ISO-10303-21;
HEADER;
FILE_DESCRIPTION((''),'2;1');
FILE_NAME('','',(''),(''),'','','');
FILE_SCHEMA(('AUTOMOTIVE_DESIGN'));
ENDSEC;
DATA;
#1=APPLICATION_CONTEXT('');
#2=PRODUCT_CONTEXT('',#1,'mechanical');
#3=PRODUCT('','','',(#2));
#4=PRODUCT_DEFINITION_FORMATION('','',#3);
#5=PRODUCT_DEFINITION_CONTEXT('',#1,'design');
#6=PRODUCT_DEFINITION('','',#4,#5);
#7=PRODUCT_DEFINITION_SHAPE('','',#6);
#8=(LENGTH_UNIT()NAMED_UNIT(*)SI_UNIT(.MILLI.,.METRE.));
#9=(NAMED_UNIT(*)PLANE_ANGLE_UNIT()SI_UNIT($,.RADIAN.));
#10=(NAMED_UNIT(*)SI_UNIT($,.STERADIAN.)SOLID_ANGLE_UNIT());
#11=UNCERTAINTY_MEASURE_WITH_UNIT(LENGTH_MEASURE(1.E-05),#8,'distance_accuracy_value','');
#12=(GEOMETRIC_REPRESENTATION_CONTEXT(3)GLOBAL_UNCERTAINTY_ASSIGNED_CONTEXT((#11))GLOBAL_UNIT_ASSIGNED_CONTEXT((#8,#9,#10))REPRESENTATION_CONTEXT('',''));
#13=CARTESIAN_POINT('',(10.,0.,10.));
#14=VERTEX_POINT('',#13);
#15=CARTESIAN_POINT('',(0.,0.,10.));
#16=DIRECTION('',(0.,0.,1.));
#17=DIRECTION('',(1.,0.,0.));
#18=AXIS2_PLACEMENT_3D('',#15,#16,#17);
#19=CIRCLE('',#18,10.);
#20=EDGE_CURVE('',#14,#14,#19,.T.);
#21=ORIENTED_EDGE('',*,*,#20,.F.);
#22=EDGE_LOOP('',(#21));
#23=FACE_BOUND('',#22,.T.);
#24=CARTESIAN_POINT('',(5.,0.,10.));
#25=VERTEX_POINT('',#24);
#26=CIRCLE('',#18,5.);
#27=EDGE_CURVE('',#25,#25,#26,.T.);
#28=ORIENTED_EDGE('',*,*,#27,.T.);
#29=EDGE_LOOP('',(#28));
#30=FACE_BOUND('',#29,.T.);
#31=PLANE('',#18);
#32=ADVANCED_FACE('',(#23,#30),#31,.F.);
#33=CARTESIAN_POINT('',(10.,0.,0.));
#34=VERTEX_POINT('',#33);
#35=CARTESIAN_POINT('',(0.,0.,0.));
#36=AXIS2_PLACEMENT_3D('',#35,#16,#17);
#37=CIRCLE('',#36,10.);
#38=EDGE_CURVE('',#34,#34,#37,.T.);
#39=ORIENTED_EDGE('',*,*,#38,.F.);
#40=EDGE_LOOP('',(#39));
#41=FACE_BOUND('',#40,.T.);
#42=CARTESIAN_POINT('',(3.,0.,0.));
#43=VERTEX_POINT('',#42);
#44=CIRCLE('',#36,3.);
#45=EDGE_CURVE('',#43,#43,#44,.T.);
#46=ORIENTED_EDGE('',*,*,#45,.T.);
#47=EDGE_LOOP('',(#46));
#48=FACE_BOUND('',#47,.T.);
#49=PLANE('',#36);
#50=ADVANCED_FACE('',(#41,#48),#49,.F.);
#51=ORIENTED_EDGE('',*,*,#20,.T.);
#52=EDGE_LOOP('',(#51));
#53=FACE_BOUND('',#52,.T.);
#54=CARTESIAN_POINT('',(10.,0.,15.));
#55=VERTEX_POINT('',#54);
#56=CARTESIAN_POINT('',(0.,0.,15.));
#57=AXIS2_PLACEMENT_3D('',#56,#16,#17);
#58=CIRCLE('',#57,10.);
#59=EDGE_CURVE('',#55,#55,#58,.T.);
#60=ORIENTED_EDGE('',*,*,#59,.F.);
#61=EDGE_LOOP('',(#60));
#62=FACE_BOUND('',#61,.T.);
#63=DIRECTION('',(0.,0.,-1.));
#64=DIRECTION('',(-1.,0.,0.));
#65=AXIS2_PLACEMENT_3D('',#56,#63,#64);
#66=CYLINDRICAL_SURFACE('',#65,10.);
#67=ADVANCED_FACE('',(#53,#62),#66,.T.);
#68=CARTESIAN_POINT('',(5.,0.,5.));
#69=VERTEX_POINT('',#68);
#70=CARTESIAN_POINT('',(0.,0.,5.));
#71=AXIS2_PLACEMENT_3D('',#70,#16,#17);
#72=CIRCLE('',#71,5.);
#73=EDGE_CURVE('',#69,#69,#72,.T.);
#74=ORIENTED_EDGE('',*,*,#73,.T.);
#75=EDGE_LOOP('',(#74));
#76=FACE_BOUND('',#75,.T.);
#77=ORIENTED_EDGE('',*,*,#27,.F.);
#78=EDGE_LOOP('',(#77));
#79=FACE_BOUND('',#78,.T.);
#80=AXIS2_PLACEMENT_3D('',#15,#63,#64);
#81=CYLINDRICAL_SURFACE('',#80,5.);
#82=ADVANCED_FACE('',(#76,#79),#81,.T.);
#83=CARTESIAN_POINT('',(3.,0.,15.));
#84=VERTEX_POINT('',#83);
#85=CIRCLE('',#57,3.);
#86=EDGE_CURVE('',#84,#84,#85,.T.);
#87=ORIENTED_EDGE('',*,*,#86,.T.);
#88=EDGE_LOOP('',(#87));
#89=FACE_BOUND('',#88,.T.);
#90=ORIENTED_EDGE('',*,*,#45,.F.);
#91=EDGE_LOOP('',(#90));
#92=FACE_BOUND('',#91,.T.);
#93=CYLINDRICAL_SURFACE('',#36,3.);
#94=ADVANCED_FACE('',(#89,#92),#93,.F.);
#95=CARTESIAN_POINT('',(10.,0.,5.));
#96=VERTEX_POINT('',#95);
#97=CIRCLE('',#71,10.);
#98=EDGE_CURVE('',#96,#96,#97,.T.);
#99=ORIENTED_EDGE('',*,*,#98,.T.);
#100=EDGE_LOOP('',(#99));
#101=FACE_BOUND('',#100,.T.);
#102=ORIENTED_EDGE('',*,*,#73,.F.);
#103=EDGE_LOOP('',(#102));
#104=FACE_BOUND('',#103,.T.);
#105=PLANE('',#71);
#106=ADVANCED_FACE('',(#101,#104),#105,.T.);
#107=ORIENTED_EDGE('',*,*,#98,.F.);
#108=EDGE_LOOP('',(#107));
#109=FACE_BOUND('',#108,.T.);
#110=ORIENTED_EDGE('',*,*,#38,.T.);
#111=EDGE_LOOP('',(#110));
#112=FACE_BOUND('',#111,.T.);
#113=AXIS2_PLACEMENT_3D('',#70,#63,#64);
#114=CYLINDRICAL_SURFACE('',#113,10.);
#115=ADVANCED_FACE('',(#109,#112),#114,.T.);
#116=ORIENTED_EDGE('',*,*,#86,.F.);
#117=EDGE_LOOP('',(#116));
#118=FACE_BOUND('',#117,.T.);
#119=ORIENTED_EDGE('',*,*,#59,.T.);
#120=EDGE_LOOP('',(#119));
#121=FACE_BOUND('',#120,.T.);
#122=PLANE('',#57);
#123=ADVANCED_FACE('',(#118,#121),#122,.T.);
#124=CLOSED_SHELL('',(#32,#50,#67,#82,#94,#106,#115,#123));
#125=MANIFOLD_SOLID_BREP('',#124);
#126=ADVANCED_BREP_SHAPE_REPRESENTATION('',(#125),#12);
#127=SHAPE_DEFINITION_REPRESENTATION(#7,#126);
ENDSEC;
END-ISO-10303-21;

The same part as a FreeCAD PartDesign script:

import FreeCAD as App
import Part
import Sketcher
from FreeCAD import Vector

doc = App.newDocument("Part")
body = doc.addObject("PartDesign::Body", "Body")

sketch1 = body.newObject("Sketcher::SketchObject", "Sketch")
sketch1.AttachmentSupport = (doc.getObject("XY_Plane"), [""])
sketch1.MapMode = "FlatFace"
sketch1.addGeometry(Part.Circle(Vector(0, 0, 0), Vector(0, 0, 1), 10), False)
sketch1.addConstraint([
    Sketcher.Constraint("Coincident", 0, 3, -1, 1),
    Sketcher.Constraint("Diameter", 0, 20.0),
])
pad1 = body.newObject("PartDesign::Pad", "Pad")
pad1.Profile = sketch1
pad1.Length = 5

sketch2 = body.newObject("Sketcher::SketchObject", "Sketch001")
sketch2.AttachmentSupport = (doc.getObject("XY_Plane"), [""])
sketch2.MapMode = "FlatFace"
sketch2.AttachmentOffset = App.Placement(Vector(0, 0, 5), App.Rotation())
sketch2.addGeometry(Part.Circle(Vector(0, 0, 0), Vector(0, 0, 1), 5), False)
sketch2.addConstraint([
    Sketcher.Constraint("Coincident", 0, 3, -1, 1),
    Sketcher.Constraint("Diameter", 0, 10.0),
])
pad2 = body.newObject("PartDesign::Pad", "Pad001")
pad2.Profile = sketch2
pad2.Length = 5

sketch3 = body.newObject("Sketcher::SketchObject", "Sketch002")
sketch3.AttachmentSupport = (doc.getObject("XY_Plane"), [""])
sketch3.MapMode = "FlatFace"
sketch3.AttachmentOffset = App.Placement(Vector(0, 0, 10), App.Rotation())
sketch3.addGeometry(Part.Circle(Vector(0, 0, 0), Vector(0, 0, 1), 10), False)
sketch3.addConstraint([
    Sketcher.Constraint("Coincident", 0, 3, -1, 1),
    Sketcher.Constraint("Diameter", 0, 20.0),
])
pad3 = body.newObject("PartDesign::Pad", "Pad002")
pad3.Profile = sketch3
pad3.Length = 5

sketch4 = body.newObject("Sketcher::SketchObject", "Sketch003")
sketch4.AttachmentSupport = (doc.getObject("XY_Plane"), [""])
sketch4.MapMode = "FlatFace"
sketch4.AttachmentOffset = App.Placement(Vector(0, 0, 15), App.Rotation())
sketch4.addGeometry(Part.Circle(Vector(0, 0, 0), Vector(0, 0, 1), 3), False)
sketch4.addConstraint([
    Sketcher.Constraint("Coincident", 0, 3, -1, 1),
    Sketcher.Constraint("Diameter", 0, 6.0),
])
pocket1 = body.newObject("PartDesign::Pocket", "Pocket")
pocket1.Profile = sketch4
pocket1.Type = "ThroughAll"

doc.recompute()
